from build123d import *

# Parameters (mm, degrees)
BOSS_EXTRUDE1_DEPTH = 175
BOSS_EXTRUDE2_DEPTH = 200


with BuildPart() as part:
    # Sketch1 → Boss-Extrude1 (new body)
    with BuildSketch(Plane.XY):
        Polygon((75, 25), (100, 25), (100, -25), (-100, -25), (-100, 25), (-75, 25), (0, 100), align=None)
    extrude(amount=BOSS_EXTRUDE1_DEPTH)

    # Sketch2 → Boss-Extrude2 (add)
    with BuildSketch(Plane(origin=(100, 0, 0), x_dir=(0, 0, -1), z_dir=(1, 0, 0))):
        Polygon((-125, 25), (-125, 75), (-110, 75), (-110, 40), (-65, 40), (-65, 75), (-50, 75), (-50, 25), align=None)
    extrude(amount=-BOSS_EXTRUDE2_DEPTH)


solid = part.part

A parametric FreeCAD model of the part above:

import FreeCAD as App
import Part
import Sketcher
from FreeCAD import Vector


def add_polygon(sketch, points):
    """Adds a closed chain of lines whose ends are joined by coincident constraints."""
    first, n = sketch.GeometryCount, len(points)
    for a, b in zip(points, points[1:] + points[:1]):
        sketch.addGeometry(Part.LineSegment(App.Vector(*a, 0), App.Vector(*b, 0)), False)
    for i in range(n):
        sketch.addConstraint(Sketcher.Constraint("Coincident", first + i, 2, first + (i + 1) % n, 1))

doc = App.newDocument("Part")
body = doc.addObject("PartDesign::Body", "Body")

# Sketch on XY plane
sketch1 = doc.addObject("Sketcher::SketchObject", "Sketch")
body.addObject(sketch1)
sketch1.AttachmentSupport = (doc.XY_Plane, [""])
sketch1.MapMode = "FlatFace"
add_polygon(sketch1, [(100, 25), (75, 25), (0, 100), (-75, 25), (-100, 25), (-100, -25), (100, -25)])  # lines 0-6
sketch1.addConstraint(Sketcher.Constraint("Horizontal", 0))
sketch1.addConstraint(Sketcher.Constraint("Horizontal", 3))
sketch1.addConstraint(Sketcher.Constraint("Vertical", 4))
sketch1.addConstraint(Sketcher.Constraint("Horizontal", 5))
sketch1.addConstraint(Sketcher.Constraint("Vertical", 6))
sketch1.addConstraint(Sketcher.Constraint("Symmetric", 3, 2, 5, 2, -1, 1))
sketch1.addConstraint(Sketcher.Constraint("Symmetric", 0, 2, 2, 2, -2))
sketch1.addConstraint(Sketcher.Constraint("PointOnObject", 1, 2, -2))
sketch1.addConstraint(Sketcher.Constraint("Perpendicular", 1, 2))
sketch1.addConstraint(Sketcher.Constraint("DistanceX", 0, 2, 0, 1, 25.0))
sketch1.addConstraint(Sketcher.Constraint("DistanceX", 5, 1, 5, 2, 200.0))
sketch1.addConstraint(Sketcher.Constraint("DistanceY", 4, 2, 4, 1, 50.0))
pad1 = doc.addObject("PartDesign::Pad", "Pad")
body.addObject(pad1)
pad1.Profile = sketch1
pad1.Length = 175

# Sketch on YZ plane
sketch2 = doc.addObject("Sketcher::SketchObject", "Sketch001")
body.addObject(sketch2)
sketch2.AttachmentSupport = (doc.YZ_Plane, [""])
sketch2.MapMode = "FlatFace"
sketch2.AttachmentOffset = App.Placement(Vector(0, 0, 100), App.Rotation())
add_polygon(sketch2, [(75, 125), (25, 125), (25, 50), (75, 50), (75, 65), (40, 65), (40, 110), (75, 110)])  # lines 0-7
sketch2.addConstraint(Sketcher.Constraint("Horizontal", 0))
sketch2.addConstraint(Sketcher.Constraint("Vertical", 1))
sketch2.addConstraint(Sketcher.Constraint("Horizontal", 2))
sketch2.addConstraint(Sketcher.Constraint("Vertical", 3))
sketch2.addConstraint(Sketcher.Constraint("Horizontal", 4))
sketch2.addConstraint(Sketcher.Constraint("Vertical", 5))
sketch2.addConstraint(Sketcher.Constraint("Horizontal", 6))
sketch2.addConstraint(Sketcher.Constraint("Vertical", 7))
sketch2.addConstraint(Sketcher.Constraint("Vertical", 3, 2, 6, 2))
sketch2.addConstraint(Sketcher.Constraint("Equal", 3, 7))
sketch2.addConstraint(Sketcher.Constraint("DistanceX", 0, 2, 0, 1, 50.0))
sketch2.addConstraint(Sketcher.Constraint("DistanceX", 4, 2, 4, 1, 35.0))
sketch2.addConstraint(Sketcher.Constraint("DistanceY", 1, 2, 1, 1, 75.0))
sketch2.addConstraint(Sketcher.Constraint("DistanceY", 3, 1, 3, 2, 15.0))
sketch2.addConstraint(Sketcher.Constraint("DistanceX", -1, 1, 0, 2, 25.0))
sketch2.addConstraint(Sketcher.Constraint("DistanceY", -1, 1, 0, 2, 125.0))
pad2 = doc.addObject("PartDesign::Pad", "Pad001")
body.addObject(pad2)
pad2.Profile = sketch2
pad2.Length = 200
pad2.Reversed = True

doc.recompute()
